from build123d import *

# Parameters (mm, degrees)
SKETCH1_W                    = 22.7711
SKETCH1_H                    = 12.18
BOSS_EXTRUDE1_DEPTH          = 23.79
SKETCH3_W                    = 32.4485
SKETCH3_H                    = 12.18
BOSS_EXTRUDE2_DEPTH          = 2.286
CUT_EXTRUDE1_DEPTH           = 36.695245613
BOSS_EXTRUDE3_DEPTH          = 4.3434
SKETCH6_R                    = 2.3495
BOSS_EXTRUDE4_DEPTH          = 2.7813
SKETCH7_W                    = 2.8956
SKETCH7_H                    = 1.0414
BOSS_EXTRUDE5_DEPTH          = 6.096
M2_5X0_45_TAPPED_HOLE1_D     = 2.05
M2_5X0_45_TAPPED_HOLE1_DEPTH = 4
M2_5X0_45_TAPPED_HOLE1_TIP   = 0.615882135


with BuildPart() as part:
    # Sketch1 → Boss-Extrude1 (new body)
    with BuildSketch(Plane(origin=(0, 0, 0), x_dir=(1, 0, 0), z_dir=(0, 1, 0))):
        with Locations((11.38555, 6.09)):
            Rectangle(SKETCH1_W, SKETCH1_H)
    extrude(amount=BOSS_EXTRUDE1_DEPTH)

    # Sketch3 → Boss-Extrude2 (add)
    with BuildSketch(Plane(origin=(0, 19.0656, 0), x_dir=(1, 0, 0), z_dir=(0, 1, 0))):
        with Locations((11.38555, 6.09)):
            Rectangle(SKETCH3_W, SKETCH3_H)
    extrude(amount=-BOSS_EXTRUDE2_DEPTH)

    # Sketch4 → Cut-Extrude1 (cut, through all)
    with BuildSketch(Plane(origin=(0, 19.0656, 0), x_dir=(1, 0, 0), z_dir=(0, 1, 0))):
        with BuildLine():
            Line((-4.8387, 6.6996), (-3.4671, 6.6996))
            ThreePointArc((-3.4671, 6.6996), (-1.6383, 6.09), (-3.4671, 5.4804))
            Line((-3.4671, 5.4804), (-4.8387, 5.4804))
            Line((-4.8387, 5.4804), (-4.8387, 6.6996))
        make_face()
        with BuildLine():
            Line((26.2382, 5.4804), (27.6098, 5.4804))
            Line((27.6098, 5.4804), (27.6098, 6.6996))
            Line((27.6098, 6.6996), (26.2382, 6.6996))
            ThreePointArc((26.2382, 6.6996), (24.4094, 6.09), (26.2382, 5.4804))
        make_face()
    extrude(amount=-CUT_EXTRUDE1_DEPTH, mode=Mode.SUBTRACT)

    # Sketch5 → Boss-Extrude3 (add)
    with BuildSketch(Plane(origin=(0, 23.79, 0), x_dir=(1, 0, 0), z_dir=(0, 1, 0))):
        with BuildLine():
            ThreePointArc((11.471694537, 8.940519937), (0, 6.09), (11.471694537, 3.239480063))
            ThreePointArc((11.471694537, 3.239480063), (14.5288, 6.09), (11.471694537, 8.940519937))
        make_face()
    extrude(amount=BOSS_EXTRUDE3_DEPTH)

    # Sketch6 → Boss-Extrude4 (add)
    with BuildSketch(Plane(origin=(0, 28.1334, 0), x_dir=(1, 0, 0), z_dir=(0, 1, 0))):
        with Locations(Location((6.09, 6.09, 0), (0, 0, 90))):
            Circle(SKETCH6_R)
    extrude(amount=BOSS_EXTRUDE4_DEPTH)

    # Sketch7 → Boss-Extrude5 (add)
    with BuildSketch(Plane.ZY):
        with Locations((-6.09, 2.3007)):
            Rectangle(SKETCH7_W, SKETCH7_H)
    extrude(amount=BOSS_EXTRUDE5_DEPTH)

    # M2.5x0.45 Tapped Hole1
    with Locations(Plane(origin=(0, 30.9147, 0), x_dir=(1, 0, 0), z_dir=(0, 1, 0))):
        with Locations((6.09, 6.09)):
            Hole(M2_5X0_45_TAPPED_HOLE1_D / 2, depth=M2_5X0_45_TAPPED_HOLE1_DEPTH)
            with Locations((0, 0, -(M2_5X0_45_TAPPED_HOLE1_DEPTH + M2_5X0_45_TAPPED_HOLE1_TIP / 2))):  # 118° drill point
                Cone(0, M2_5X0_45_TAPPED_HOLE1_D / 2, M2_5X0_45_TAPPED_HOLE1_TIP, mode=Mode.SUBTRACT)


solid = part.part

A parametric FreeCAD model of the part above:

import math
import FreeCAD as App
import Part
import Sketcher

V = App.Vector
Q = App.Units.Quantity


def add_polygon(sketch, points):
    """Adds a closed chain of lines whose ends are joined by coincident constraints."""
    first, n = sketch.GeometryCount, len(points)
    for a, b in zip(points, points[1:] + points[:1]):
        sketch.addGeometry(Part.LineSegment(App.Vector(*a, 0), App.Vector(*b, 0)), False)
    for i in range(n):
        sketch.addConstraint(Sketcher.Constraint("Coincident", first + i, 2, first + (i + 1) % n, 1))

doc = App.newDocument("Part")
params = doc.addObject("Spreadsheet::Sheet", "Params")
for row, (alias, value) in enumerate([
    ("pad1_length", "23.79 mm"),
    ("pad2_length", "0.09 in"),
    ("sketch3_radius", "0.04 in"),
    ("sketch3_width", "0.054 in"),
    ("sketch3_height", "0.048 in"),
    ("pad3_length", "0.171 in"),
    ("sketch5_diameter", "0.185 in"),
    ("pad4_length", "0.1095 in"),
    ("sketch6_width", "0.041 in"),
    ("sketch6_height", "0.114 in"),
    ("pad5_length", "0.24 in"),
    ("hole_diameter", "2.05 mm"),
    ("hole_depth", "4 mm"),
], start=1):
    params.set(f"A{row}", alias)
    params.set(f"B{row}", "=" + value)
    params.setAlias(f"B{row}", alias)

body = doc.addObject("PartDesign::Body", "Body")

sketch1 = body.newObject("Sketcher::SketchObject", "Sketch")
sketch1.AttachmentSupport = (doc.getObject("XZ_Plane"), [""])
sketch1.MapMode = "FlatFace"
add_polygon(sketch1, [(0, -12.18), (0, 0), (22.7711, 0), (22.7711, -12.18)])
sketch1.addConstraint(Sketcher.Constraint("Vertical", 0))
sketch1.addConstraint(Sketcher.Constraint("Horizontal", 1))
sketch1.addConstraint(Sketcher.Constraint("Vertical", 2))
sketch1.addConstraint(Sketcher.Constraint("Horizontal", 3))
sketch1.addConstraint(Sketcher.Constraint("Coincident", 0, 2, -1, 1))
sketch1.addConstraint(Sketcher.Constraint("DistanceX", 1, 1, 1, 2, Q("0.8965 in")))
sketch1.addConstraint(Sketcher.Constraint("DistanceY", 0, 1, 0, 2, Q("12.18 mm")))
pad1 = body.newObject("PartDesign::Pad", "Pad")
pad1.Profile = sketch1
pad1.setExpression("Length", "Params.pad1_length")
pad1.Reversed = True

sketch2 = body.newObject("Sketcher::SketchObject", "Sketch001")
sketch2.AttachmentSupport = (doc.getObject("XZ_Plane"), [""])
sketch2.MapMode = "FlatFace"
sketch2.AttachmentOffset = App.Placement(V(0, 0, -19.0656), App.Rotation())
add_polygon(sketch2, [(-4.8387, -12.18), (-4.8387, 0), (27.6098, 0), (27.6098, -12.18)])
sketch2.addConstraint(Sketcher.Constraint("Vertical", 0))
sketch2.addConstraint(Sketcher.Constraint("Horizontal", 1))
sketch2.addConstraint(Sketcher.Constraint("Vertical", 2))
sketch2.addConstraint(Sketcher.Constraint("Horizontal", 3))
sketch2.addConstraint(Sketcher.Constraint("PointOnObject", 0, 2, -1))
sketch2.addConstraint(Sketcher.Constraint("DistanceX", 1, 1, 1, 2, Q("1.2775 in")))
sketch2.addConstraint(Sketcher.Constraint("DistanceX", -1, 1, 1, 2, Q("1.087 in")))
sketch2.addConstraint(Sketcher.Constraint("DistanceY", 0, 1, 0, 2, Q("12.18 mm")))
pad2 = body.newObject("PartDesign::Pad", "Pad001")
pad2.Profile = sketch2
pad2.setExpression("Length", "Params.pad2_length")

sketch3 = body.newObject("Sketcher::SketchObject", "Sketch002")
sketch3.AttachmentSupport = (doc.getObject("XZ_Plane"), [""])
sketch3.MapMode = "FlatFace"
sketch3.AttachmentOffset = App.Placement(V(0, 0, -19.0656), App.Rotation())
sketch3.addGeometry(Part.LineSegment(V(-3.4671, -6.6996, 0), V(-4.8387, -6.6996, 0)), False)
sketch3.addGeometry(Part.LineSegment(V(-4.8387, -6.6996, 0), V(-4.8387, -5.4804, 0)), False)
sketch3.addGeometry(Part.LineSegment(V(-4.8387, -5.4804, 0), V(-3.4671, -5.4804, 0)), False)
sketch3.addGeometry(Part.ArcOfCircle(Part.Circle(V(-2.6543, -6.09, 0), V(0, 0, 1), 1.016), math.radians(-143.130102), math.radians(143.130102)), False)
sketch3.addGeometry(Part.LineSegment(V(26.2382, -5.4804, 0), V(27.6098, -5.4804, 0)), False)
sketch3.addGeometry(Part.LineSegment(V(27.6098, -5.4804, 0), V(27.6098, -6.6996, 0)), False)
sketch3.addGeometry(Part.LineSegment(V(27.6098, -6.6996, 0), V(26.2382, -6.6996, 0)), False)
sketch3.addGeometry(Part.ArcOfCircle(Part.Circle(V(25.4254, -6.09, 0), V(0, 0, 1), 1.016), math.radians(36.869898), math.radians(323.130102)), False)
sketch3.addConstraint(Sketcher.Constraint("Coincident", 0, 2, 1, 1))
sketch3.addConstraint(Sketcher.Constraint("Coincident", 1, 2, 2, 1))
sketch3.addConstraint(Sketcher.Constraint("Coincident", 2, 2, 3, 2))
sketch3.addConstraint(Sketcher.Constraint("Coincident", 3, 1, 0, 1))
sketch3.addConstraint(Sketcher.Constraint("Coincident", 4, 2, 5, 1))
sketch3.addConstraint(Sketcher.Constraint("Coincident", 5, 2, 6, 1))
sketch3.addConstraint(Sketcher.Constraint("Coincident", 6, 2, 7, 2))
sketch3.addConstraint(Sketcher.Constraint("Coincident", 7, 1, 4, 1))
sketch3.addConstraint(Sketcher.Constraint("Horizontal", 0))
sketch3.addConstraint(Sketcher.Constraint("Vertical", 1))
sketch3.addConstraint(Sketcher.Constraint("Horizontal", 2))
sketch3.addConstraint(Sketcher.Constraint("Horizontal", 4))
sketch3.addConstraint(Sketcher.Constraint("Vertical", 5))
sketch3.addConstraint(Sketcher.Constraint("Horizontal", 6))
sketch3.addConstraint(Sketcher.Constraint("Equal", 3, 7))
sketch3.addConstraint(Sketcher.Constraint("Horizontal", 3, 3, 7, 3))
sketch3.addConstraint(Sketcher.Constraint("Horizontal", 2, 2, 4, 2))
sketch3.addConstraint(Sketcher.Constraint("Horizontal", 3, 1, 5, 2))
sketch3.addConstraint(Sketcher.Constraint("Vertical", 2, 2, 3, 1))
sketch3.addConstraint(Sketcher.Constraint("Equal", 2, 4))
sketch3.addConstraint(Sketcher.Constraint("Radius", 3, Q("0.04 in")))
sketch3.addConstraint(Sketcher.Constraint("DistanceX", 0, 2, 0, 1, Q("0.054 in")))
sketch3.addConstraint(Sketcher.Constraint("DistanceY", 1, 1, 1, 2, Q("0.048 in")))
sketch3.addConstraint(Sketcher.Constraint("DistanceX", -1, 1, 7, 3, Q("1.001 in")))
sketch3.addConstraint(Sketcher.Constraint("DistanceX", 3, 3, -1, 1, Q("0.1045 in")))
sketch3.addConstraint(Sketcher.Constraint("DistanceY", 3, 3, -1, 1, Q("6.09 mm")))
sketch3.setExpression("Constraints[20]", "Params.sketch3_radius")
sketch3.setExpression("Constraints[21]", "Params.sketch3_width")
sketch3.setExpression("Constraints[22]", "Params.sketch3_height")
pocket1 = body.newObject("PartDesign::Pocket", "Pocket")
pocket1.Profile = sketch3
pocket1.Type = "ThroughAll"
pocket1.Reversed = True

sketch4 = body.newObject("Sketcher::SketchObject", "Sketch003")
sketch4.AttachmentSupport = (doc.getObject("XZ_Plane"), [""])
sketch4.MapMode = "FlatFace"
sketch4.AttachmentOffset = App.Placement(V(0, 0, -23.79), App.Rotation())
sketch4.addGeometry(Part.ArcOfCircle(Part.Circle(V(6.09, -6.09, 0), V(0, 0, 1), 6.09), math.radians(27.908808), math.radians(332.091192)), False)
sketch4.addGeometry(Part.ArcOfCircle(Part.Circle(V(11.6713, -6.09, 0), V(0, 0, 1), 2.8575), math.radians(-94.005554), math.radians(94.005554)), False)
sketch4.addConstraint(Sketcher.Constraint("Coincident", 0, 1, 1, 2))
sketch4.addConstraint(Sketcher.Constraint("Coincident", 1, 1, 0, 2))
sketch4.addConstraint(Sketcher.Constraint("Horizontal", 0, 3, 1, 3))
sketch4.addConstraint(Sketcher.Constraint("Radius", 1, Q("0.1125 in")))
sketch4.addConstraint(Sketcher.Constraint("Radius", 0, Q("6.09 mm")))
sketch4.addConstraint(Sketcher.Constraint("DistanceX", -1, 1, 1, 3, Q("0.4595 in")))
sketch4.addConstraint(Sketcher.Constraint("DistanceX", -1, 1, 0, 3, Q("6.09 mm")))
sketch4.addConstraint(Sketcher.Constraint("DistanceY", 0, 3, -1, 1, Q("6.09 mm")))
pad3 = body.newObject("PartDesign::Pad", "Pad002")
pad3.Profile = sketch4
pad3.setExpression("Length", "Params.pad3_length")
pad3.Reversed = True

sketch5 = body.newObject("Sketcher::SketchObject", "Sketch004")
sketch5.AttachmentSupport = (doc.getObject("XZ_Plane"), [""])
sketch5.MapMode = "FlatFace"
sketch5.AttachmentOffset = App.Placement(V(0, 0, -28.1334), App.Rotation())
sketch5.addGeometry(Part.Circle(V(6.09, -6.09, 0), V(0, 0, 1), 2.3495), False)
sketch5.addConstraint(Sketcher.Constraint("Diameter", 0, Q("0.185 in")))
sketch5.addConstraint(Sketcher.Constraint("DistanceX", -1, 1, 0, 3, Q("6.09 mm")))
sketch5.addConstraint(Sketcher.Constraint("DistanceY", 0, 3, -1, 1, Q("6.09 mm")))
sketch5.setExpression("Constraints[0]", "Params.sketch5_diameter")
pad4 = body.newObject("PartDesign::Pad", "Pad003")
pad4.Profile = sketch5
pad4.setExpression("Length", "Params.pad4_length")
pad4.Reversed = True

sketch6 = body.newObject("Sketcher::SketchObject", "Sketch005")
sketch6.AttachmentSupport = (doc.getObject("YZ_Plane"), [""])
sketch6.MapMode = "FlatFace"
add_polygon(sketch6, [(2.8214, -7.5378), (1.78, -7.5378), (1.78, -4.6422), (2.8214, -4.6422)])
sketch6.addConstraint(Sketcher.Constraint("Horizontal", 0))
sketch6.addConstraint(Sketcher.Constraint("Vertical", 1))
sketch6.addConstraint(Sketcher.Constraint("Horizontal", 2))
sketch6.addConstraint(Sketcher.Constraint("Vertical", 3))
sketch6.addConstraint(Sketcher.Constraint("DistanceX", 0, 2, 0, 1, Q("0.041 in")))
sketch6.addConstraint(Sketcher.Constraint("DistanceY", 1, 1, 1, 2, Q("0.114 in")))
sketch6.addConstraint(Sketcher.Constraint("DistanceX", -1, 1, 0, 2, Q("1.78 mm")))
sketch6.addConstraint(Sketcher.Constraint("DistanceY", 0, 2, -1, 1, Q("7.5378 mm")))
sketch6.setExpression("Constraints[8]", "Params.sketch6_width")
sketch6.setExpression("Constraints[9]", "Params.sketch6_height")
pad5 = body.newObject("PartDesign::Pad", "Pad004")
pad5.Profile = sketch6
pad5.setExpression("Length", "Params.pad5_length")
pad5.Reversed = True

sketch7 = body.newObject("Sketcher::SketchObject", "Sketch006")
sketch7.AttachmentSupport = (doc.getObject("XZ_Plane"), [""])
sketch7.MapMode = "FlatFace"
sketch7.AttachmentOffset = App.Placement(V(0, 0, -30.9147), App.Rotation())
sketch7.addGeometry(Part.Circle(V(6.09, -6.09, 0), V(0, 0, 1), 1.025), False)
sketch7.addConstraint(Sketcher.Constraint("Diameter", 0, Q("2.05 mm")))
sketch7.addConstraint(Sketcher.Constraint("DistanceX", -1, 1, 0, 3, Q("6.09 mm")))
sketch7.addConstraint(Sketcher.Constraint("DistanceY", 0, 3, -1, 1, Q("6.09 mm")))
doc.recompute()
hole = body.newObject("PartDesign::Hole", "Hole")
hole.Profile = sketch7
hole.ThreadType = "None"
hole.setExpression("Diameter", "Params.hole_diameter")
hole.DepthType = "Dimension"
hole.setExpression("Depth", "Params.hole_depth")
hole.DrillPoint = "Angled"
hole.DrillPointAngle = 118
hole.Reversed = True

doc.recompute()
